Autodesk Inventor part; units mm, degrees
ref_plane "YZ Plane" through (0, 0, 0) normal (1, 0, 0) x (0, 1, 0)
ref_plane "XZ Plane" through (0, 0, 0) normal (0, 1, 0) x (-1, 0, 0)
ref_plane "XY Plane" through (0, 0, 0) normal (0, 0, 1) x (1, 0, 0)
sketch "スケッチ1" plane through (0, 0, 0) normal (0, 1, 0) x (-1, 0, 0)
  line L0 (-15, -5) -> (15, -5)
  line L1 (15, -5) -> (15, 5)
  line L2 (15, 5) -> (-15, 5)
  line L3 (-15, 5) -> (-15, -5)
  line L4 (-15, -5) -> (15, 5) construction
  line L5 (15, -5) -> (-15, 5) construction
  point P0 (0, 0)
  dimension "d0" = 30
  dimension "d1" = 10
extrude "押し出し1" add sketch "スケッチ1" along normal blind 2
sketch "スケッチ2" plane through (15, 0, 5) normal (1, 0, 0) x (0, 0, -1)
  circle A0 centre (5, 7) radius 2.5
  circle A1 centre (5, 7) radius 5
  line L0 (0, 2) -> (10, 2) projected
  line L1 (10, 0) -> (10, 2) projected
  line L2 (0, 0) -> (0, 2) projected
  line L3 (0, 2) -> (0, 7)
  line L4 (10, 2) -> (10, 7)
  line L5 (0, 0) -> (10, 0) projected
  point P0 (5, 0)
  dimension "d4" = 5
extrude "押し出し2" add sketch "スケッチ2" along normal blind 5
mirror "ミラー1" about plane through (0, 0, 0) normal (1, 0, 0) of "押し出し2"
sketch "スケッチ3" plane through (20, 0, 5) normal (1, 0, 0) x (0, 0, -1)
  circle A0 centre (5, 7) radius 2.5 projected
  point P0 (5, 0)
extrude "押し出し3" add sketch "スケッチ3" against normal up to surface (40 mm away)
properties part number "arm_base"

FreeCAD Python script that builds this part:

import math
import FreeCAD as App
import Part
import Sketcher
Q = App.Units.Quantity

doc = App.newDocument("Part")
body = doc.addObject("PartDesign::Body", "Body")

sketch1 = body.newObject("Sketcher::SketchObject", "Sketch")
sketch1.AttachmentSupport = (doc.getObject("XZ_Plane"), [""])
sketch1.MapMode = "FlatFace"
sketch1.addGeometry([
    Part.LineSegment(App.Vector(15, 5, 0), App.Vector(15, -5, 0)),
    Part.LineSegment(App.Vector(15, -5, 0), App.Vector(-15, -5, 0)),
    Part.LineSegment(App.Vector(-15, -5, 0), App.Vector(-15, 5, 0)),
    Part.LineSegment(App.Vector(-15, 5, 0), App.Vector(15, 5, 0)),
], False)
sketch1.addConstraint([
    Sketcher.Constraint("Coincident", 0, 2, 1, 1),
    Sketcher.Constraint("Coincident", 1, 2, 2, 1),
    Sketcher.Constraint("Coincident", 2, 2, 3, 1),
    Sketcher.Constraint("Coincident", 3, 2, 0, 1),
    Sketcher.Constraint("Vertical", 0),
    Sketcher.Constraint("Horizontal", 1),
    Sketcher.Constraint("Vertical", 2),
    Sketcher.Constraint("Horizontal", 3),
    Sketcher.Constraint("Symmetric", 0, 2, 2, 2, -1, 1),
    Sketcher.Constraint("DistanceX", 1, 2, 1, 1, Q("30 mm")),
    Sketcher.Constraint("DistanceY", 0, 2, 0, 1, Q("10 mm")),
])
pad1 = body.newObject("PartDesign::Pad", "Pad")
pad1.Profile = sketch1
pad1.Length = 2
pad1.Reversed = True

sketch2 = body.newObject("Sketcher::SketchObject", "Sketch001")
sketch2.AttachmentSupport = (doc.getObject("YZ_Plane"), [""])
sketch2.MapMode = "FlatFace"
sketch2.AttachmentOffset = App.Placement(App.Vector(0, 0, 15), App.Rotation())
sketch2.addGeometry([
    Part.ArcOfCircle(Part.Circle(App.Vector(7, 0, 0), App.Vector(0, 0, 1), 5), math.radians(-90), math.radians(90)),
    Part.LineSegment(App.Vector(7, 5, 0), App.Vector(0, 5, 0)),
    Part.LineSegment(App.Vector(0, 5, 0), App.Vector(0, -5, 0)),
    Part.LineSegment(App.Vector(0, -5, 0), App.Vector(7, -5, 0)),
    Part.Circle(App.Vector(7, 0, 0), App.Vector(0, 0, 1), 2.5),
], False)
sketch2.addConstraint([
    Sketcher.Constraint("Tangent", 0, 2, 1, 1),
    Sketcher.Constraint("Coincident", 1, 2, 2, 1),
    Sketcher.Constraint("Coincident", 2, 2, 3, 1),
    Sketcher.Constraint("Tangent", 3, 2, 0, 1),
    Sketcher.Constraint("Horizontal", 1),
    Sketcher.Constraint("Vertical", 2),
    Sketcher.Constraint("Horizontal", 3),
    Sketcher.Constraint("Coincident", 4, 3, 0, 3),
    Sketcher.Constraint("Symmetric", 1, 2, 2, 2, -1, 1),
    Sketcher.Constraint("Diameter", 4, Q("5 mm")),
    Sketcher.Constraint("Radius", 0, Q("5 mm")),
    Sketcher.Constraint("DistanceX", 1, 2, 1, 1, Q("7 mm")),
])
pad2 = body.newObject("PartDesign::Pad", "Pad001")
pad2.Profile = sketch2
pad2.Length = 5
doc.recompute()

mirrored = body.newObject("PartDesign::Mirrored", "Mirrored")
mirrored.Originals = [pad2]
mirrored.MirrorPlane = (doc.getObject("YZ_Plane"), [""])
body.Tip = mirrored

sketch3 = body.newObject("Sketcher::SketchObject", "Sketch002")
sketch3.AttachmentSupport = (doc.getObject("YZ_Plane"), [""])
sketch3.MapMode = "FlatFace"
sketch3.AttachmentOffset = App.Placement(App.Vector(0, 0, 20), App.Rotation())
sketch3.addGeometry(Part.Circle(App.Vector(7, 0, 0), App.Vector(0, 0, 1), 2.5), False)
sketch3.addConstraint([
    Sketcher.Constraint("PointOnObject", 0, 3, -1),
    Sketcher.Constraint("Diameter", 0, Q("5 mm")),
    Sketcher.Constraint("DistanceX", -1, 1, 0, 3, Q("7 mm")),
])
pad3 = body.newObject("PartDesign::Pad", "Pad002")
pad3.Profile = sketch3
pad3.Length = 40
pad3.Reversed = True

doc.recompute()
